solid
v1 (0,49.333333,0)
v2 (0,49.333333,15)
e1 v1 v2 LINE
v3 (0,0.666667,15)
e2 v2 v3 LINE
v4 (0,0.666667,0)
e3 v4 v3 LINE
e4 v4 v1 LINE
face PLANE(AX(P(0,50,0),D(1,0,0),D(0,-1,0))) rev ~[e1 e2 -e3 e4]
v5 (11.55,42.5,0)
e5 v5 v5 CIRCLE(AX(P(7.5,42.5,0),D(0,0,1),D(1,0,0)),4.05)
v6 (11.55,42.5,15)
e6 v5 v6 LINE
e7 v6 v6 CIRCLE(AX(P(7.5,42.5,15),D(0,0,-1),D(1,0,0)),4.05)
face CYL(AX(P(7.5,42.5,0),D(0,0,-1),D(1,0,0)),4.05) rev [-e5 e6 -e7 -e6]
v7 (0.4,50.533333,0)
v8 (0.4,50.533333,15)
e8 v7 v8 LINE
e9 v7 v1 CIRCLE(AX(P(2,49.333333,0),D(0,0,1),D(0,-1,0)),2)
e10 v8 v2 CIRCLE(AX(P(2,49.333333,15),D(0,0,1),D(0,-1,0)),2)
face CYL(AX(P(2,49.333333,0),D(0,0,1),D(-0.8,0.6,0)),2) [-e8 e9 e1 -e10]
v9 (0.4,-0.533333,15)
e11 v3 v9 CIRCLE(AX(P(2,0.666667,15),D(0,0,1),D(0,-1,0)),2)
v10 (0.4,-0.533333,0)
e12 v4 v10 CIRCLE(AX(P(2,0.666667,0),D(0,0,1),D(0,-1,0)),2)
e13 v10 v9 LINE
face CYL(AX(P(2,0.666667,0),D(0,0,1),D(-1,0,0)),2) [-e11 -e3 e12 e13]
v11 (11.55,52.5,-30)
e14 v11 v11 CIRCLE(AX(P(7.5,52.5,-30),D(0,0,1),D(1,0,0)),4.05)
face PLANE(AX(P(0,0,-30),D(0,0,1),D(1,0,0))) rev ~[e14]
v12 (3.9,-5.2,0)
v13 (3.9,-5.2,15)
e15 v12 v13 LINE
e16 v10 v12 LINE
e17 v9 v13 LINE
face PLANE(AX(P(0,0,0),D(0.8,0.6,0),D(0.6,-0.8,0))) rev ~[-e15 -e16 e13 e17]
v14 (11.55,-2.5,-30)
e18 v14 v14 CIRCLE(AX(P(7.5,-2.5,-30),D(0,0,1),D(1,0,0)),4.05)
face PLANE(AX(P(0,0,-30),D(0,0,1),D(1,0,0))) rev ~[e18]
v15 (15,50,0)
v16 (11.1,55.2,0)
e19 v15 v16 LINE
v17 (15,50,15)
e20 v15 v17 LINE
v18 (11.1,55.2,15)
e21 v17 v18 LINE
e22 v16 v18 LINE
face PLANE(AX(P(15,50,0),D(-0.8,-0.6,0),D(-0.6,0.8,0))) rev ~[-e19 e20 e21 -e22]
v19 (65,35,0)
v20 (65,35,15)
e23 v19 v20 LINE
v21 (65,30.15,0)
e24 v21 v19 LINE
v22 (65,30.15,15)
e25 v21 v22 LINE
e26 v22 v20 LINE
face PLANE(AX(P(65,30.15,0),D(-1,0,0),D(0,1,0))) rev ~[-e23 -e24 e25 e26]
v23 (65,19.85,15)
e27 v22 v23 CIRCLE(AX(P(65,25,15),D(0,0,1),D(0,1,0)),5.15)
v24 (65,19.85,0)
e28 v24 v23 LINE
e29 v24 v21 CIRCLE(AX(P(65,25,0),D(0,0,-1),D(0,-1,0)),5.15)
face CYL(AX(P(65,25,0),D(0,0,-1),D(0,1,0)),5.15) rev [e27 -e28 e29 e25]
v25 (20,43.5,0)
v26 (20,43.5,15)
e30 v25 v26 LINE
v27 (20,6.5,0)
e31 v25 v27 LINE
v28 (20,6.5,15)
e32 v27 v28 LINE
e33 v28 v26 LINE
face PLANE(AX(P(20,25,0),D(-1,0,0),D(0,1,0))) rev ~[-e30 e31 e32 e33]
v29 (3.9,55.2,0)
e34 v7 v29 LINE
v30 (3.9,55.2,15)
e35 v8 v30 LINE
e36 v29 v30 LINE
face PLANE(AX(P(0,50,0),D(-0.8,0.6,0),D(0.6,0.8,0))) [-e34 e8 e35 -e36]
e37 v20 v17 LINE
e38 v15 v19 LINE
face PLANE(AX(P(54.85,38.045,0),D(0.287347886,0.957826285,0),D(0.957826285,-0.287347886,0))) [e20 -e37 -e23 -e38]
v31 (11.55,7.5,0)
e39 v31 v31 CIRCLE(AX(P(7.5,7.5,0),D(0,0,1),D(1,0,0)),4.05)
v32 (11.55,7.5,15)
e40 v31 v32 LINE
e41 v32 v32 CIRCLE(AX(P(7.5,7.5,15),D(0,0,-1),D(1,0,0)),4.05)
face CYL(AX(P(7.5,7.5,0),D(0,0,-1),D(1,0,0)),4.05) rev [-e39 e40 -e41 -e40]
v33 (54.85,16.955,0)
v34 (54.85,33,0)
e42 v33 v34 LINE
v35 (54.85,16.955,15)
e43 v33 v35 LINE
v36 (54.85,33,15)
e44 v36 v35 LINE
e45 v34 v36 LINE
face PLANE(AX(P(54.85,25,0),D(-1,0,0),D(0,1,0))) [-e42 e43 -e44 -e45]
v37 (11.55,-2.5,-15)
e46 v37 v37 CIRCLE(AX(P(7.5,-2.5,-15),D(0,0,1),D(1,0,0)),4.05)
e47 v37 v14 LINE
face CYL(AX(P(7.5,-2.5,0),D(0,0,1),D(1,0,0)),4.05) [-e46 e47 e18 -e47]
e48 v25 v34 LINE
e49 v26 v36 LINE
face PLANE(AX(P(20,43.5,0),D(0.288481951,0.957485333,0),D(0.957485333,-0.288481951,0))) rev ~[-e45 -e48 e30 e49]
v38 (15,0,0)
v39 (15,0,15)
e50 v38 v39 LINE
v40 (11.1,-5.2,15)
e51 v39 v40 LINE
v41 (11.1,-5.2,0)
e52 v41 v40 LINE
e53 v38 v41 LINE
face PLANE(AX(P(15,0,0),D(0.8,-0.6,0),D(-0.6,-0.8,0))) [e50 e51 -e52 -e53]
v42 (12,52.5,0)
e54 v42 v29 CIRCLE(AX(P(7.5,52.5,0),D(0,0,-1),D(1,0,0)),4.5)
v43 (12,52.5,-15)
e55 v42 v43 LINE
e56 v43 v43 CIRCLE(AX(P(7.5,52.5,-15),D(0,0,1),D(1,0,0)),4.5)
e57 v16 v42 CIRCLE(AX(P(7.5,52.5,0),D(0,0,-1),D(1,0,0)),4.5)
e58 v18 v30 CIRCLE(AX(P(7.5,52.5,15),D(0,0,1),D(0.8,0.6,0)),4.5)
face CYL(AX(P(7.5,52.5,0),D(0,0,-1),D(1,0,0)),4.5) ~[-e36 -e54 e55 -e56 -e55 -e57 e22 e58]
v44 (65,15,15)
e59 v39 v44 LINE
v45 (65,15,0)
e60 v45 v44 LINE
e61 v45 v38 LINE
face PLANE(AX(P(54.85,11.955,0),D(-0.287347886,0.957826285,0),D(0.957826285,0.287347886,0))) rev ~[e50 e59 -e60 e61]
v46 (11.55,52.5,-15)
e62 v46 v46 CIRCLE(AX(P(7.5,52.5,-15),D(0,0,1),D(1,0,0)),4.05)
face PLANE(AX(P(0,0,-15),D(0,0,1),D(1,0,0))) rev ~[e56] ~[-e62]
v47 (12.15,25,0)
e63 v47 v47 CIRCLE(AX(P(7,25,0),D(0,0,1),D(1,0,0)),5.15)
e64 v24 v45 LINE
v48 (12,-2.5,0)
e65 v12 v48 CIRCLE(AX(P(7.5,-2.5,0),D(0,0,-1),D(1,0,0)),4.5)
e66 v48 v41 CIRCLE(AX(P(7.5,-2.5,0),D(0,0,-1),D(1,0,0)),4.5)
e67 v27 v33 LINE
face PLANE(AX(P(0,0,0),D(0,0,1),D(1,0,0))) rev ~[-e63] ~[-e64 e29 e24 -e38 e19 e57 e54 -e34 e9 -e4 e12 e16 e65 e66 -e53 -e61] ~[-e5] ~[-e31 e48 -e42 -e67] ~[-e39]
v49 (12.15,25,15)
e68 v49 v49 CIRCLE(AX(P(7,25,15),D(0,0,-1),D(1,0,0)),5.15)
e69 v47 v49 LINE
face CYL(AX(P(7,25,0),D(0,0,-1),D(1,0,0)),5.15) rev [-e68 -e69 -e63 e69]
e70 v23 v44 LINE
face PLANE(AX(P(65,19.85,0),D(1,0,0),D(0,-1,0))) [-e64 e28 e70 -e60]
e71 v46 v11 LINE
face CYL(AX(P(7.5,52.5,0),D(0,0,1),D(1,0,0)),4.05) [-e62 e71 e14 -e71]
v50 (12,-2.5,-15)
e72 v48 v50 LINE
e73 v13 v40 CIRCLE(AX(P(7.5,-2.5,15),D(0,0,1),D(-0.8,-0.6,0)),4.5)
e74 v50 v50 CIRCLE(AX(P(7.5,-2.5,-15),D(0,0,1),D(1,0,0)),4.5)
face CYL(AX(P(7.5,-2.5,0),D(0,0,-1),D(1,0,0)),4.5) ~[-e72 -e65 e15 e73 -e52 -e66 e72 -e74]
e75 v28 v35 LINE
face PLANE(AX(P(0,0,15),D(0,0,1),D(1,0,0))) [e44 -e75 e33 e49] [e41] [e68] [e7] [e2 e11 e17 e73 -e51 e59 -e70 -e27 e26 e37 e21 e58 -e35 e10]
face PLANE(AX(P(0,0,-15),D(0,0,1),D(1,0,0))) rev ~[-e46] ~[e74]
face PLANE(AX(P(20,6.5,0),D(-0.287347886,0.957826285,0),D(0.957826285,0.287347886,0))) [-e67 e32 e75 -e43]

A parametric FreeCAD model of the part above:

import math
import FreeCAD as App
import Part
import Sketcher
from FreeCAD import Vector
Q = App.Units.Quantity


def edges_at(feature, points):
    """Names of the edges that pass closest to the given points."""
    edges = feature.Shape.Edges
    near = lambda p: min(range(len(edges)), key=lambda i: edges[i].distToShape(Part.Vertex(*p))[0])
    return sorted({f"Edge{near(p) + 1}" for p in points})

doc = App.newDocument("Part")
body = doc.addObject("PartDesign::Body", "Body")

sketch1 = body.newObject("Sketcher::SketchObject", "Sketch")
sketch1.AttachmentSupport = (doc.getObject("XY_Plane"), [""])
sketch1.MapMode = "FlatFace"
sketch1.addGeometry([
    Part.LineSegment(Vector(65, 30.15, 0), Vector(65, 35, 0)),
    Part.LineSegment(Vector(65, 35, 0), Vector(15, 50, 0)),
    Part.LineSegment(Vector(15, 50, 0), Vector(11.1, 55.2, 0)),
    Part.ArcOfCircle(Part.Circle(Vector(7.5, 52.5, 0), Vector(0, 0, 1), 4.5), math.radians(36.869898), math.radians(143.130102)),
    Part.LineSegment(Vector(3.9, 55.2, 0), Vector(0, 50, 0)),
    Part.LineSegment(Vector(0, 50, 0), Vector(0, 0, 0)),
    Part.LineSegment(Vector(0, 0, 0), Vector(3.9, -5.2, 0)),
    Part.ArcOfCircle(Part.Circle(Vector(7.5, -2.5, 0), Vector(0, 0, 1), 4.5), math.radians(-143.130102), math.radians(-36.869898)),
    Part.LineSegment(Vector(11.1, -5.2, 0), Vector(15, 0, 0)),
    Part.LineSegment(Vector(15, 0, 0), Vector(65, 15, 0)),
    Part.LineSegment(Vector(65, 15, 0), Vector(65, 19.85, 0)),
    Part.ArcOfCircle(Part.Circle(Vector(65, 25, 0), Vector(0, 0, 1), 5.15), math.radians(90), math.radians(270)),
    Part.LineSegment(Vector(54.85, 33, 0), Vector(54.85, 16.955, 0)),
    Part.LineSegment(Vector(54.85, 16.955, 0), Vector(20, 6.5, 0)),
    Part.LineSegment(Vector(20, 6.5, 0), Vector(20, 43.5, 0)),
    Part.LineSegment(Vector(20, 43.5, 0), Vector(54.85, 33, 0)),
    Part.Circle(Vector(7, 25, 0), Vector(0, 0, 1), 5.15),
    Part.Circle(Vector(7.5, 42.5, 0), Vector(0, 0, 1), 4.05),
    Part.Circle(Vector(7.5, 7.5, 0), Vector(0, 0, 1), 4.05),
], False)
sketch1.addConstraint([
    Sketcher.Constraint("Coincident", 0, 2, 1, 1),
    Sketcher.Constraint("Coincident", 1, 2, 2, 1),
    Sketcher.Constraint("Tangent", 2, 2, 3, 1),
    Sketcher.Constraint("Tangent", 3, 2, 4, 1),
    Sketcher.Constraint("Coincident", 4, 2, 5, 1),
    Sketcher.Constraint("Coincident", 5, 2, 6, 1),
    Sketcher.Constraint("Tangent", 6, 2, 7, 1),
    Sketcher.Constraint("Tangent", 7, 2, 8, 1),
    Sketcher.Constraint("Coincident", 8, 2, 9, 1),
    Sketcher.Constraint("Coincident", 9, 2, 10, 1),
    Sketcher.Constraint("Coincident", 10, 2, 11, 2),
    Sketcher.Constraint("Coincident", 11, 1, 0, 1),
    Sketcher.Constraint("Coincident", 12, 2, 13, 1),
    Sketcher.Constraint("Coincident", 13, 2, 14, 1),
    Sketcher.Constraint("Coincident", 14, 2, 15, 1),
    Sketcher.Constraint("Coincident", 15, 2, 12, 1),
    Sketcher.Constraint("Vertical", 0),
    Sketcher.Constraint("Vertical", 5),
    Sketcher.Constraint("Vertical", 10),
    Sketcher.Constraint("Vertical", 12),
    Sketcher.Constraint("Vertical", 14),
    Sketcher.Constraint("Coincident", 5, 2, -1, 1),
    Sketcher.Constraint("Equal", 3, 7),
    Sketcher.Constraint("Equal", 11, 16),
    Sketcher.Constraint("Equal", 17, 18),
    Sketcher.Constraint("PointOnObject", 8, 2, -1),
    Sketcher.Constraint("Parallel", 2, 6),
    Sketcher.Constraint("Parallel", 4, 8),
    Sketcher.Constraint("Parallel", 9, 13),
    Sketcher.Constraint("Horizontal", 11, 3, 16, 3),
    Sketcher.Constraint("Horizontal", 2, 2, 3, 2),
    Sketcher.Constraint("Horizontal", 1, 2, 4, 2),
    Sketcher.Constraint("Vertical", 3, 3, 7, 3),
    Sketcher.Constraint("Vertical", 7, 3, 17, 3),
    Sketcher.Constraint("Vertical", 17, 3, 18, 3),
    Sketcher.Constraint("Vertical", 11, 3, 0, 2),
    Sketcher.Constraint("Vertical", 0, 2, 9, 2),
    Sketcher.Constraint("Equal", 0, 10),
    Sketcher.Constraint("Equal", 1, 9),
    Sketcher.Constraint("Diameter", 16, Q("10.3 mm")),
    Sketcher.Constraint("Diameter", 17, Q("8.1 mm")),
    Sketcher.Constraint("Radius", 3, Q("4.5 mm")),
    Sketcher.Constraint("DistanceY", 5, 2, 5, 1, Q("50 mm")),
    Sketcher.Constraint("DistanceX", -1, 1, 1, 2, Q("15 mm")),
    Sketcher.Constraint("DistanceY", -1, 1, 9, 2, Q("15 mm")),
    Sketcher.Constraint("DistanceX", -1, 1, 13, 2, Q("20 mm")),
    Sketcher.Constraint("DistanceY", 17, 3, 3, 3, Q("10 mm")),
    Sketcher.Constraint("DistanceY", 7, 3, 17, 3, Q("45 mm")),
    Sketcher.Constraint("DistanceY", 7, 3, 18, 3, Q("10 mm")),
    Sketcher.Constraint("DistanceX", 1, 2, 0, 2, Q("50 mm")),
    Sketcher.Constraint("DistanceY", 7, 3, 13, 2, Q("9 mm")),
    Sketcher.Constraint("DistanceY", 14, 2, 3, 3, Q("9 mm")),
    Sketcher.Constraint("DistanceX", 16, 3, 3, 3, Q("0.5 mm")),
    Sketcher.Constraint("DistanceY", -1, 1, 15, 2, Q("33 mm")),
    Sketcher.Constraint("DistanceY", 12, 2, 12, 1, Q("16.045 mm")),
])
pad1 = body.newObject("PartDesign::Pad", "Pad")
pad1.Profile = sketch1
pad1.Length = 15

sketch2 = body.newObject("Sketcher::SketchObject", "Sketch001")
sketch2.AttachmentSupport = (doc.getObject("XY_Plane"), [""])
sketch2.MapMode = "FlatFace"
sketch2.addGeometry([
    Part.Circle(Vector(7.5, 52.5, 0), Vector(0, 0, 1), 4.5),
    Part.Circle(Vector(7.5, -2.5, 0), Vector(0, 0, 1), 4.5),
], False)
sketch2.addConstraint([
    Sketcher.Constraint("Equal", 0, 1),
    Sketcher.Constraint("Vertical", 0, 3, 1, 3),
    Sketcher.Constraint("Diameter", 0, Q("9 mm")),
    Sketcher.Constraint("DistanceX", -1, 1, 0, 3, Q("7.5 mm")),
    Sketcher.Constraint("DistanceY", 1, 3, 0, 3, Q("55 mm")),
    Sketcher.Constraint("DistanceY", -1, 1, 0, 3, Q("52.5 mm")),
])
pad2 = body.newObject("PartDesign::Pad", "Pad001")
pad2.Profile = sketch2
pad2.Length = 15
pad2.Reversed = True

sketch3 = body.newObject("Sketcher::SketchObject", "Sketch002")
sketch3.AttachmentSupport = (doc.getObject("XY_Plane"), [""])
sketch3.MapMode = "FlatFace"
sketch3.addGeometry([
    Part.Circle(Vector(7.5, 52.5, 0), Vector(0, 0, 1), 4.05),
    Part.Circle(Vector(7.5, -2.5, 0), Vector(0, 0, 1), 4.05),
], False)
sketch3.addConstraint([
    Sketcher.Constraint("Equal", 0, 1),
    Sketcher.Constraint("Vertical", 0, 3, 1, 3),
    Sketcher.Constraint("Diameter", 0, Q("8.1 mm")),
    Sketcher.Constraint("DistanceX", -1, 1, 0, 3, Q("7.5 mm")),
    Sketcher.Constraint("DistanceY", 1, 3, 0, 3, Q("55 mm")),
    Sketcher.Constraint("DistanceY", -1, 1, 0, 3, Q("52.5 mm")),
])
pad3 = body.newObject("PartDesign::Pad", "Pad002")
pad3.Profile = sketch3
pad3.Length = 30
pad3.Reversed = True
doc.recompute()

fillet = body.newObject("PartDesign::Fillet", "Fillet")
fillet.Base = (pad3, edges_at(pad3, [(0, 0, 7.5), (0, 50, 7.5)]))
fillet.Radius = 2

doc.recompute()
